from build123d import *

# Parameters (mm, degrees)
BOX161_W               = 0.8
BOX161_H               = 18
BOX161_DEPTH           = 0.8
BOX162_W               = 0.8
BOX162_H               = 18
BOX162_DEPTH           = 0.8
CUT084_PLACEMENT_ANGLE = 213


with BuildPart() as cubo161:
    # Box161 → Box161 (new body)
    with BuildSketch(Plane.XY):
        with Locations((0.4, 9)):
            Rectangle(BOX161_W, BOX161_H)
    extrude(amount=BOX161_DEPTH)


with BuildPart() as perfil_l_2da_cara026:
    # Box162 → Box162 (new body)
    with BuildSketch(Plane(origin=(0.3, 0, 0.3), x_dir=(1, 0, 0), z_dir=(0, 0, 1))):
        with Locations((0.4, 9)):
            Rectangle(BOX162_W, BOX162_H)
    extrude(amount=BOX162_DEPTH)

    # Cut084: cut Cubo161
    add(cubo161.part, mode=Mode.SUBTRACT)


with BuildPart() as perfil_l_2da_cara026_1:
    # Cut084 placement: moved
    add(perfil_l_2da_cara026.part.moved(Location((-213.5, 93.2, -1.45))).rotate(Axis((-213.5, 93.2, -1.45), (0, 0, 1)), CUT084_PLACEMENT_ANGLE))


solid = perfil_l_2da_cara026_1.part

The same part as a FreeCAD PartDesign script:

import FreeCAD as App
import Part
import Sketcher
from FreeCAD import Vector
Q = App.Units.Quantity

doc = App.newDocument("Part")
body = doc.addObject("PartDesign::Body", "Body")

# Sketch on XY plane
sketch1 = body.newObject("Sketcher::SketchObject", "Sketch")
sketch1.AttachmentSupport = (doc.getObject("XY_Plane"), [""])
sketch1.MapMode = "FlatFace"
sketch1.addGeometry([
    Part.LineSegment(Vector(0, 18, 0), Vector(0, 0, 0)),
    Part.LineSegment(Vector(0, 0, 0), Vector(0.8, 0, 0)),
    Part.LineSegment(Vector(0.8, 0, 0), Vector(0.8, 18, 0)),
    Part.LineSegment(Vector(0.8, 18, 0), Vector(0, 18, 0)),
], False)
sketch1.addConstraint([
    Sketcher.Constraint("Coincident", 0, 2, 1, 1),
    Sketcher.Constraint("Coincident", 1, 2, 2, 1),
    Sketcher.Constraint("Coincident", 2, 2, 3, 1),
    Sketcher.Constraint("Coincident", 3, 2, 0, 1),
    Sketcher.Constraint("Vertical", 0),
    Sketcher.Constraint("Horizontal", 1),
    Sketcher.Constraint("Vertical", 2),
    Sketcher.Constraint("Horizontal", 3),
    Sketcher.Constraint("Coincident", 0, 2, -1, 1),
    Sketcher.Constraint("DistanceY", 0, 2, 0, 1, Q("18 mm")),
    Sketcher.Constraint("DistanceX", 1, 1, 1, 2, Q("0.8 mm")),
])
pad1 = body.newObject("PartDesign::Pad", "Pad")
pad1.Profile = sketch1
pad1.Length = 0.8
body2 = doc.addObject("PartDesign::Body", "Body001")

# Sketch on XY plane
sketch2 = body2.newObject("Sketcher::SketchObject", "Sketch001")
sketch2.AttachmentSupport = (doc.getObject("XY_Plane001"), [""])
sketch2.MapMode = "FlatFace"
sketch2.AttachmentOffset = App.Placement(Vector(0, 0, 0.3), App.Rotation())
sketch2.addGeometry([
    Part.LineSegment(Vector(0.3, 18, 0), Vector(0.3, 0, 0)),
    Part.LineSegment(Vector(0.3, 0, 0), Vector(1.1, 0, 0)),
    Part.LineSegment(Vector(1.1, 0, 0), Vector(1.1, 18, 0)),
    Part.LineSegment(Vector(1.1, 18, 0), Vector(0.3, 18, 0)),
], False)
sketch2.addConstraint([
    Sketcher.Constraint("Coincident", 0, 2, 1, 1),
    Sketcher.Constraint("Coincident", 1, 2, 2, 1),
    Sketcher.Constraint("Coincident", 2, 2, 3, 1),
    Sketcher.Constraint("Coincident", 3, 2, 0, 1),
    Sketcher.Constraint("Vertical", 0),
    Sketcher.Constraint("Horizontal", 1),
    Sketcher.Constraint("Vertical", 2),
    Sketcher.Constraint("Horizontal", 3),
    Sketcher.Constraint("PointOnObject", 0, 2, -1),
    Sketcher.Constraint("DistanceY", 0, 2, 0, 1, Q("18 mm")),
    Sketcher.Constraint("DistanceX", 1, 1, 1, 2, Q("0.8 mm")),
    Sketcher.Constraint("DistanceX", -1, 1, 0, 2, Q("0.3 mm")),
])
pad2 = body2.newObject("PartDesign::Pad", "Pad001")
pad2.Profile = sketch2
pad2.Length = 0.8
doc.recompute()

boolean = body2.newObject("PartDesign::Boolean", "Boolean")
boolean.Type = "Cut"
boolean.addObjects([body])
body3 = doc.addObject("PartDesign::Body", "Body002")
doc.recompute()

body2.Placement = App.Placement(Vector(-213.5, 93.2, -1.45), App.Rotation(Vector(0, 0, 1), 213))
boolean2 = body3.newObject("PartDesign::Boolean", "Boolean001")
boolean2.Type = "Fuse"
boolean2.addObjects([body2])

doc.recompute()
